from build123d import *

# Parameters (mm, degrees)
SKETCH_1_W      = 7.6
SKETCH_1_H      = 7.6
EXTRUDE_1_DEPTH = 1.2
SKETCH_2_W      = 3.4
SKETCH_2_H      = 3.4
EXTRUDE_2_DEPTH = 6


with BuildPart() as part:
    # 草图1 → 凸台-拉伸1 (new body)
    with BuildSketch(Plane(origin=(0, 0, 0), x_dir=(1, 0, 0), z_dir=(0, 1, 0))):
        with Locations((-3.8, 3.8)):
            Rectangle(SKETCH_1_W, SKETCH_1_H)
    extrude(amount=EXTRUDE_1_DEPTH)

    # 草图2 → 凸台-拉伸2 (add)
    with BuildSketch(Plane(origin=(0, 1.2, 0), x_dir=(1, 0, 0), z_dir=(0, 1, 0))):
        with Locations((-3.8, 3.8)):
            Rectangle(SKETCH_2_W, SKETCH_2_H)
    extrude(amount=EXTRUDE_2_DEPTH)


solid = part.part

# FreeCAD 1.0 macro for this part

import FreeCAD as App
import Part
import Sketcher

doc = App.newDocument("Part")
params = doc.addObject("Spreadsheet::Sheet", "Params")
for row, (alias, value) in enumerate([
    ("sketch1_width", "7.6 mm"),
    ("pad1_length", "1.2 mm"),
    ("sketch2_width", "3.4 mm"),
    ("pad2_length", "6 mm"),
], start=1):
    params.set(f"A{row}", alias)
    params.set(f"B{row}", "=" + value)
    params.setAlias(f"B{row}", alias)

body = doc.addObject("PartDesign::Body", "Body")

# Sketch on XZ plane
sketch1 = body.newObject("Sketcher::SketchObject", "Sketch")
sketch1.AttachmentSupport = (doc.getObject("XZ_Plane"), [""])
sketch1.MapMode = "FlatFace"
sketch1.addGeometry(Part.LineSegment(App.Vector(-8, -8, 0), App.Vector(-8, 0, 0)), False)
sketch1.addGeometry(Part.LineSegment(App.Vector(-8, 0, 0), App.Vector(0, 0, 0)), False)
sketch1.addGeometry(Part.LineSegment(App.Vector(0, 0, 0), App.Vector(0, -8, 0)), False)
sketch1.addGeometry(Part.LineSegment(App.Vector(0, -8, 0), App.Vector(-8, -8, 0)), False)
sketch1.addConstraint(Sketcher.Constraint("Coincident", 0, 2, 1, 1))
sketch1.addConstraint(Sketcher.Constraint("Coincident", 1, 2, 2, 1))
sketch1.addConstraint(Sketcher.Constraint("Coincident", 2, 2, 3, 1))
sketch1.addConstraint(Sketcher.Constraint("Coincident", 3, 2, 0, 1))
sketch1.addConstraint(Sketcher.Constraint("Vertical", 0))
sketch1.addConstraint(Sketcher.Constraint("Horizontal", 1))
sketch1.addConstraint(Sketcher.Constraint("Vertical", 2))
sketch1.addConstraint(Sketcher.Constraint("Horizontal", 3))
sketch1.addConstraint(Sketcher.Constraint("Coincident", 1, 2, -1, 1))
sketch1.addConstraint(Sketcher.Constraint("Equal", 3, 0))
sketch1.addConstraint(Sketcher.Constraint("DistanceX", 1, 1, 1, 2, 7.6))
sketch1.setExpression("Constraints[10]", "Params.sketch1_width")
pad1 = body.newObject("PartDesign::Pad", "Pad")
pad1.Profile = sketch1
pad1.setExpression("Length", "Params.pad1_length")
pad1.Reversed = True

# Sketch on XZ plane
sketch2 = body.newObject("Sketcher::SketchObject", "Sketch001")
sketch2.AttachmentSupport = (doc.getObject("XZ_Plane"), [""])
sketch2.MapMode = "FlatFace"
sketch2.AttachmentOffset = App.Placement(App.Vector(0, 0, -1.2), App.Rotation())
sketch2.addGeometry(Part.LineSegment(App.Vector(-5.5, -5.5, 0), App.Vector(-5.5, -2.1, 0)), False)
sketch2.addGeometry(Part.LineSegment(App.Vector(-5.5, -2.1, 0), App.Vector(-2.1, -2.1, 0)), False)
sketch2.addGeometry(Part.LineSegment(App.Vector(-2.1, -2.1, 0), App.Vector(-2.1, -5.5, 0)), False)
sketch2.addGeometry(Part.LineSegment(App.Vector(-2.1, -5.5, 0), App.Vector(-5.5, -5.5, 0)), False)
sketch2.addConstraint(Sketcher.Constraint("Coincident", 0, 2, 1, 1))
sketch2.addConstraint(Sketcher.Constraint("Coincident", 1, 2, 2, 1))
sketch2.addConstraint(Sketcher.Constraint("Coincident", 2, 2, 3, 1))
sketch2.addConstraint(Sketcher.Constraint("Coincident", 3, 2, 0, 1))
sketch2.addConstraint(Sketcher.Constraint("Vertical", 0))
sketch2.addConstraint(Sketcher.Constraint("Horizontal", 1))
sketch2.addConstraint(Sketcher.Constraint("Vertical", 2))
sketch2.addConstraint(Sketcher.Constraint("Horizontal", 3))
sketch2.addConstraint(Sketcher.Constraint("Equal", 3, 0))
sketch2.addConstraint(Sketcher.Constraint("DistanceX", 1, 1, 1, 2, 3.4))
sketch2.addConstraint(Sketcher.Constraint("DistanceX", 0, 2, -1, 1, 5.5))
sketch2.addConstraint(Sketcher.Constraint("DistanceY", 0, 2, -1, 1, 2.1))
sketch2.setExpression("Constraints[9]", "Params.sketch2_width")
pad2 = body.newObject("PartDesign::Pad", "Pad001")
pad2.Profile = sketch2
pad2.setExpression("Length", "Params.pad2_length")
pad2.Reversed = True

doc.recompute()
